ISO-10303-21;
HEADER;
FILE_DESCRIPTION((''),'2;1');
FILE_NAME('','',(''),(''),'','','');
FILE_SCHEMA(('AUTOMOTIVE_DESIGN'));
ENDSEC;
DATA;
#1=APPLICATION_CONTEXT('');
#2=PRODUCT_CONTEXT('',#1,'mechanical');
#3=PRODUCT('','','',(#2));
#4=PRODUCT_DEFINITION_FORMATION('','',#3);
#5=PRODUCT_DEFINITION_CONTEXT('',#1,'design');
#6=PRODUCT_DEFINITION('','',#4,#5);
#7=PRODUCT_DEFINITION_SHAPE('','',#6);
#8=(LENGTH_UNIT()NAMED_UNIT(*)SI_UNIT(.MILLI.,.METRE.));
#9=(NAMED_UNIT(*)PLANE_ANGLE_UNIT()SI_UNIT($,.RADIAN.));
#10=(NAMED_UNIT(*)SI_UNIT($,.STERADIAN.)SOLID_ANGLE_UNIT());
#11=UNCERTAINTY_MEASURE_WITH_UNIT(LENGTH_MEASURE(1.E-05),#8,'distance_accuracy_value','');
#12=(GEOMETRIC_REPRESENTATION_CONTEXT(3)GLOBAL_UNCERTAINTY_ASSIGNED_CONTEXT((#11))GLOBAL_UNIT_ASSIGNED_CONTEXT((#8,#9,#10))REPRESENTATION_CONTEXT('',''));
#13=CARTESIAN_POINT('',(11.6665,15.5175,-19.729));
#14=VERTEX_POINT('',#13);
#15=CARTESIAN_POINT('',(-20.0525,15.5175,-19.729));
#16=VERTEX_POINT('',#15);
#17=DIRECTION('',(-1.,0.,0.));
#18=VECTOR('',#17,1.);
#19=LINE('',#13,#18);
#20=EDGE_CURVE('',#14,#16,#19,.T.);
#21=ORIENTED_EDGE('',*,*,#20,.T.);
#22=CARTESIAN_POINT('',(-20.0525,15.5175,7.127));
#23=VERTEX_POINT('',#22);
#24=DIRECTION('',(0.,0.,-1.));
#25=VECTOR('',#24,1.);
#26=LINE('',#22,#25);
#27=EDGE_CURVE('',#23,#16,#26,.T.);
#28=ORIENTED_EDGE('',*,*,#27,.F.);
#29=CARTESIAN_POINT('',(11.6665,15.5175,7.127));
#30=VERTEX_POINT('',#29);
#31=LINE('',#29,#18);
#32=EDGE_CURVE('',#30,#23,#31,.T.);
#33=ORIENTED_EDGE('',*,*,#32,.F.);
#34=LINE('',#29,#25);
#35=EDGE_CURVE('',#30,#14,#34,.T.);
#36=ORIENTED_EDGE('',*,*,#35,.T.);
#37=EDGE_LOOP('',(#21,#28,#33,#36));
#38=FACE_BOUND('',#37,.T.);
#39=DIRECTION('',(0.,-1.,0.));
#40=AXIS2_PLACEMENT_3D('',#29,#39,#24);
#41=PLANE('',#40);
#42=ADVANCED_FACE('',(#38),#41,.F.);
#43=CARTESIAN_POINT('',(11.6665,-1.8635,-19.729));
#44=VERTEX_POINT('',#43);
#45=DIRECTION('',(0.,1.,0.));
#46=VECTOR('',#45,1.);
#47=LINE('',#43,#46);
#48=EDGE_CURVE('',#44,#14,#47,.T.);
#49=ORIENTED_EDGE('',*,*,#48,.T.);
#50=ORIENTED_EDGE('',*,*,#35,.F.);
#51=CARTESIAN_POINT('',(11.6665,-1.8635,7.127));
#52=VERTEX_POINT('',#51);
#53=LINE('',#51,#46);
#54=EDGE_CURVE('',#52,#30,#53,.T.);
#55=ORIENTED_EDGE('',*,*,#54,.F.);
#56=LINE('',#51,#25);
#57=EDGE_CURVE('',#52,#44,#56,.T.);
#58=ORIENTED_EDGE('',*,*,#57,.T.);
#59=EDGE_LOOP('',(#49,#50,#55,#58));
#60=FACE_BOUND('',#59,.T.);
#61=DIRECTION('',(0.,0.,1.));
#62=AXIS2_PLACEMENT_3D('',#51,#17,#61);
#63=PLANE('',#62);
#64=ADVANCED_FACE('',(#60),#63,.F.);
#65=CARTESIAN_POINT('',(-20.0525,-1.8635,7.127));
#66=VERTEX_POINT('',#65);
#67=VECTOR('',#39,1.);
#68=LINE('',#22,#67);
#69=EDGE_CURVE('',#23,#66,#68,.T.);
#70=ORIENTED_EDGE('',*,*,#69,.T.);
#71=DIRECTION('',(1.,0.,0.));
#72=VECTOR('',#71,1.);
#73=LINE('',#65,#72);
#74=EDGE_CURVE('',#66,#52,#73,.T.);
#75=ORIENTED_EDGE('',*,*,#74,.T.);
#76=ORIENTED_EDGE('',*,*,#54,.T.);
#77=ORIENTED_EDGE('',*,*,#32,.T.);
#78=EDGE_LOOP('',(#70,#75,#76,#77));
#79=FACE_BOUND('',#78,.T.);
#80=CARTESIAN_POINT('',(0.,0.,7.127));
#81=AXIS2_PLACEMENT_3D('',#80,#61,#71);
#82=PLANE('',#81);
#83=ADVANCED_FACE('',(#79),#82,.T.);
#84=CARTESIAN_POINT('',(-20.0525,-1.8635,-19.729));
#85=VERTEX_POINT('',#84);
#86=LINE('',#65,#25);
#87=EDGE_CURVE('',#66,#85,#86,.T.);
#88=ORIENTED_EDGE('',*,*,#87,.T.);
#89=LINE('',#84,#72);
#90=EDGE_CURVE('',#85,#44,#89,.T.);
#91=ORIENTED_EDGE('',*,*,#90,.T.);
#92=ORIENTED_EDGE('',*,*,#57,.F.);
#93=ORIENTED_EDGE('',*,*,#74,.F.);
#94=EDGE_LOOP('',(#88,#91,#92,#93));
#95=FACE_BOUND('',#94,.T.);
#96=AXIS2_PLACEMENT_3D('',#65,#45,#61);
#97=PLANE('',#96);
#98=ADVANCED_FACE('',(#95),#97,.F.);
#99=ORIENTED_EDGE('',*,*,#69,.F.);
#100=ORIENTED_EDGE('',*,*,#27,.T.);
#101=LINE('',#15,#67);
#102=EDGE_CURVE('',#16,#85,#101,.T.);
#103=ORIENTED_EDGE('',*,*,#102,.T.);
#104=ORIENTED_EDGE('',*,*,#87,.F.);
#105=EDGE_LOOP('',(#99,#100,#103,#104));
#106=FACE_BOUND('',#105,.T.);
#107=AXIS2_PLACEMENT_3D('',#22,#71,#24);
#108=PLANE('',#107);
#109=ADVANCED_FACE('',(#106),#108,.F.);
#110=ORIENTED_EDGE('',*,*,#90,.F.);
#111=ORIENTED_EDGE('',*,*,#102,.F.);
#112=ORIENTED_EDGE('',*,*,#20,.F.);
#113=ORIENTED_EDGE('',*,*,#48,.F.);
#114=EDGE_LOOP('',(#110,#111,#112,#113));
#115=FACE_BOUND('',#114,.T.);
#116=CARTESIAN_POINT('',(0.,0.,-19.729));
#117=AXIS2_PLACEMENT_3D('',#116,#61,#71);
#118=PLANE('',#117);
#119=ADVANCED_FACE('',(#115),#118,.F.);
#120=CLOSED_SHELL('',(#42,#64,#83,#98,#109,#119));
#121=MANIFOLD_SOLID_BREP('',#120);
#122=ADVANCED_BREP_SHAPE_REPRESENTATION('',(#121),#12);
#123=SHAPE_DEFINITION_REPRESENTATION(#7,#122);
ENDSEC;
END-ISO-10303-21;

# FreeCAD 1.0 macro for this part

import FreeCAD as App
import Part
import Sketcher
from FreeCAD import Vector

doc = App.newDocument("Part")
body = doc.addObject("PartDesign::Body", "Body")

# Sketch on XY plane
sketch1 = body.newObject("Sketcher::SketchObject", "Sketch")
sketch1.AttachmentSupport = (doc.getObject("XY_Plane"), [""])
sketch1.MapMode = "FlatFace"
sketch1.addGeometry([
    Part.LineSegment(Vector(-20, 16, 0), Vector(-20, -2, 0)),
    Part.LineSegment(Vector(-20, -2, 0), Vector(12, -2, 0)),
    Part.LineSegment(Vector(12, -2, 0), Vector(12, 16, 0)),
    Part.LineSegment(Vector(12, 16, 0), Vector(-20, 16, 0)),
], False)
sketch1.addConstraint([
    Sketcher.Constraint("Coincident", 0, 2, 1, 1),
    Sketcher.Constraint("Coincident", 1, 2, 2, 1),
    Sketcher.Constraint("Coincident", 2, 2, 3, 1),
    Sketcher.Constraint("Coincident", 3, 2, 0, 1),
    Sketcher.Constraint("Vertical", 0),
    Sketcher.Constraint("Horizontal", 1),
    Sketcher.Constraint("Vertical", 2),
    Sketcher.Constraint("Horizontal", 3),
    Sketcher.Constraint("DistanceX", 1, 1, 1, 2, 31.719),
    Sketcher.Constraint("DistanceY", 0, 2, 0, 1, 17.381),
    Sketcher.Constraint("DistanceX", 0, 2, -1, 1, 20.0525),
    Sketcher.Constraint("DistanceY", 0, 2, -1, 1, 1.8635),
])
pad1 = body.newObject("PartDesign::Pad", "Pad")
pad1.Profile = sketch1
pad1.Type = "TwoLengths"
pad1.Length = 7.127
pad1.Length2 = 19.729

doc.recompute()
